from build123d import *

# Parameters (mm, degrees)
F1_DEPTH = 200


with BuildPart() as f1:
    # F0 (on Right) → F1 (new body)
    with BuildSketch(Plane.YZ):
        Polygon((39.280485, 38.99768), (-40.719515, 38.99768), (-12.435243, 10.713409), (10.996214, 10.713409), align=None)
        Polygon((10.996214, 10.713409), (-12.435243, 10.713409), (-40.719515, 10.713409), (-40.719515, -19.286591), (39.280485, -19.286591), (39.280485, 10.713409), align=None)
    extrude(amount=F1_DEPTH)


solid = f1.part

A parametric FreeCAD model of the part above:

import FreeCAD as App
import Part
import Sketcher
Q = App.Units.Quantity

doc = App.newDocument("Part")
body = doc.addObject("PartDesign::Body", "Body")

# Sketch on YZ plane
sketch1 = body.newObject("Sketcher::SketchObject", "Sketch")
sketch1.AttachmentSupport = (doc.getObject("YZ_Plane"), [""])
sketch1.MapMode = "FlatFace"
sketch1.addGeometry([
    Part.LineSegment(App.Vector(39, 39, 0), App.Vector(-41, 39, 0)),  # 0
    Part.LineSegment(App.Vector(-41, 39, 0), App.Vector(-12, 11, 0)),  # 1
    Part.LineSegment(App.Vector(-12, 11, 0), App.Vector(-41, 11, 0)),  # 2
    Part.LineSegment(App.Vector(-41, 11, 0), App.Vector(-41, -19, 0)),  # 3
    Part.LineSegment(App.Vector(-41, -19, 0), App.Vector(39, -19, 0)),  # 4
    Part.LineSegment(App.Vector(39, -19, 0), App.Vector(39, 11, 0)),  # 5
    Part.LineSegment(App.Vector(39, 11, 0), App.Vector(11, 11, 0)),  # 6
    Part.LineSegment(App.Vector(11, 11, 0), App.Vector(39, 39, 0)),  # 7
], False)
sketch1.addConstraint([
    Sketcher.Constraint("Coincident", 0, 2, 1, 1),
    Sketcher.Constraint("Coincident", 1, 2, 2, 1),
    Sketcher.Constraint("Coincident", 2, 2, 3, 1),
    Sketcher.Constraint("Coincident", 3, 2, 4, 1),
    Sketcher.Constraint("Coincident", 4, 2, 5, 1),
    Sketcher.Constraint("Coincident", 5, 2, 6, 1),
    Sketcher.Constraint("Coincident", 6, 2, 7, 1),
    Sketcher.Constraint("Coincident", 7, 2, 0, 1),
    Sketcher.Constraint("Horizontal", 0),
    Sketcher.Constraint("Horizontal", 2),
    Sketcher.Constraint("Vertical", 3),
    Sketcher.Constraint("Horizontal", 4),
    Sketcher.Constraint("Vertical", 5),
    Sketcher.Constraint("Horizontal", 6),
    Sketcher.Constraint("Perpendicular", 1, 7),
    Sketcher.Constraint("Horizontal", 2, 2, 5, 2),
    Sketcher.Constraint("Vertical", 0, 2, 2, 2),
    Sketcher.Constraint("Vertical", 5, 2, 7, 2),
    Sketcher.Constraint("Equal", 2, 6),
    Sketcher.Constraint("DistanceX", 0, 2, 0, 1, Q("80 mm")),
    Sketcher.Constraint("DistanceY", 3, 2, 3, 1, Q("30 mm")),
    Sketcher.Constraint("Distance", 1, Q("40 mm")),
    Sketcher.Constraint("DistanceY", -1, 1, 0, 2, Q("38.99768 mm")),
    Sketcher.Constraint("DistanceX", 0, 2, -1, 1, Q("40.719515 mm")),
])
pad1 = body.newObject("PartDesign::Pad", "Pad")
pad1.Profile = sketch1
pad1.Length = 200

doc.recompute()
